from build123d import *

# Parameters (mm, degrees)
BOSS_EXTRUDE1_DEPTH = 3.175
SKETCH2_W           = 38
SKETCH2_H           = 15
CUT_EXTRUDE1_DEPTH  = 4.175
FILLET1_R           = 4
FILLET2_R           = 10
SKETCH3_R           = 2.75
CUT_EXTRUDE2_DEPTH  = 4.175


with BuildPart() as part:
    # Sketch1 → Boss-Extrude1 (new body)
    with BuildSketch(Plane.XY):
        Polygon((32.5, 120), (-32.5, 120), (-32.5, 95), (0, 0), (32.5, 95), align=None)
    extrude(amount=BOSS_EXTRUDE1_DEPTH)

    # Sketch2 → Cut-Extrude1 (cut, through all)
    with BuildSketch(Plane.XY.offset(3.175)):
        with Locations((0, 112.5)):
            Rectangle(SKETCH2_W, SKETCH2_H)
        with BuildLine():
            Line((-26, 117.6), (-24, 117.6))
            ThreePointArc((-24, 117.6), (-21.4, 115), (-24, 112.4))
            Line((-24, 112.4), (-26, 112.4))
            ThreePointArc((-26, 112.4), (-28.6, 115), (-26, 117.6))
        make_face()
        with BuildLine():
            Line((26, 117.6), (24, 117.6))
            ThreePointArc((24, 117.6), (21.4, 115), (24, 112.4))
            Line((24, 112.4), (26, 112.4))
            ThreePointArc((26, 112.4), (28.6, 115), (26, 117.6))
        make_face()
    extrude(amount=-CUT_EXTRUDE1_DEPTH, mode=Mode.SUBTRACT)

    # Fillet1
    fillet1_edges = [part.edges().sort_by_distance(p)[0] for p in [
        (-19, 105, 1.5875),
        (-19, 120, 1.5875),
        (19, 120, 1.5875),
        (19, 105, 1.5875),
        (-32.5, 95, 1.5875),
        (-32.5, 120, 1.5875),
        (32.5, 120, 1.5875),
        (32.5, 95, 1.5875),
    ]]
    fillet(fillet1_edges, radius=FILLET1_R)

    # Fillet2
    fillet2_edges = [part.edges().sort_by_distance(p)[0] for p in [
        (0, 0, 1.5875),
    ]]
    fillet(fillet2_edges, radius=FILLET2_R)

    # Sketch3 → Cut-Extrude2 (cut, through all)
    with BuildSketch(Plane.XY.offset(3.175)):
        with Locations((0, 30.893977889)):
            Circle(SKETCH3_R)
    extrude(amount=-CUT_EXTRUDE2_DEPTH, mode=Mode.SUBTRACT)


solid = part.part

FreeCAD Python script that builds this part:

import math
import FreeCAD as App
import Part
import Sketcher

V = App.Vector


def edges_at(feature, points):
    """Names of the edges that pass closest to the given points."""
    edges = feature.Shape.Edges
    near = lambda p: min(range(len(edges)), key=lambda i: edges[i].distToShape(Part.Vertex(*p))[0])
    return sorted({f"Edge{near(p) + 1}" for p in points})

doc = App.newDocument("Part")
body = doc.addObject("PartDesign::Body", "Body")

sketch1 = body.newObject("Sketcher::SketchObject", "Sketch")
sketch1.AttachmentSupport = (doc.getObject("XY_Plane"), [""])
sketch1.MapMode = "FlatFace"
sketch1.addGeometry(Part.LineSegment(V(32, 120, 0), V(-32, 120, 0)), False)
sketch1.addGeometry(Part.LineSegment(V(-32, 120, 0), V(-32, 95, 0)), False)
sketch1.addGeometry(Part.LineSegment(V(-32, 95, 0), V(0, 0, 0)), False)
sketch1.addGeometry(Part.LineSegment(V(0, 0, 0), V(32, 95, 0)), False)
sketch1.addGeometry(Part.LineSegment(V(32, 95, 0), V(32, 120, 0)), False)
sketch1.addConstraint(Sketcher.Constraint("Coincident", 0, 2, 1, 1))
sketch1.addConstraint(Sketcher.Constraint("Coincident", 1, 2, 2, 1))
sketch1.addConstraint(Sketcher.Constraint("Coincident", 2, 2, 3, 1))
sketch1.addConstraint(Sketcher.Constraint("Coincident", 3, 2, 4, 1))
sketch1.addConstraint(Sketcher.Constraint("Coincident", 4, 2, 0, 1))
sketch1.addConstraint(Sketcher.Constraint("Horizontal", 0))
sketch1.addConstraint(Sketcher.Constraint("Vertical", 1))
sketch1.addConstraint(Sketcher.Constraint("Vertical", 4))
sketch1.addConstraint(Sketcher.Constraint("Coincident", 2, 2, -1, 1))
sketch1.addConstraint(Sketcher.Constraint("Symmetric", 1, 2, 3, 2, -2))
sketch1.addConstraint(Sketcher.Constraint("DistanceX", 0, 2, 0, 1, 65.0))
sketch1.addConstraint(Sketcher.Constraint("DistanceY", 1, 2, 1, 1, 25.0))
sketch1.addConstraint(Sketcher.Constraint("DistanceY", -1, 1, 0, 2, 120.0))
pad1 = body.newObject("PartDesign::Pad", "Pad")
pad1.Profile = sketch1
pad1.Length = 3.175

sketch2 = body.newObject("Sketcher::SketchObject", "Sketch001")
sketch2.AttachmentSupport = (doc.getObject("XY_Plane"), [""])
sketch2.MapMode = "FlatFace"
sketch2.AttachmentOffset = App.Placement(V(0, 0, 3.175), App.Rotation())
sketch2.addGeometry(Part.LineSegment(V(-19, 120, 0), V(-19, 105, 0)), False)
sketch2.addGeometry(Part.LineSegment(V(-19, 105, 0), V(19, 105, 0)), False)
sketch2.addGeometry(Part.LineSegment(V(19, 105, 0), V(19, 120, 0)), False)
sketch2.addGeometry(Part.LineSegment(V(19, 120, 0), V(-19, 120, 0)), False)
sketch2.addGeometry(Part.LineSegment(V(-24, 117.6, 0), V(-26, 117.6, 0)), False)
sketch2.addGeometry(Part.ArcOfCircle(Part.Circle(V(-26, 115, 0), V(0, 0, 1), 2.6), math.radians(90), math.radians(270)), False)
sketch2.addGeometry(Part.LineSegment(V(-26, 112.4, 0), V(-24, 112.4, 0)), False)
sketch2.addGeometry(Part.ArcOfCircle(Part.Circle(V(-24, 115, 0), V(0, 0, 1), 2.6), math.radians(-90), math.radians(90)), False)
sketch2.addGeometry(Part.LineSegment(V(26, 117.6, 0), V(24, 117.6, 0)), False)
sketch2.addGeometry(Part.ArcOfCircle(Part.Circle(V(24, 115, 0), V(0, 0, 1), 2.6), math.radians(90), math.radians(270)), False)
sketch2.addGeometry(Part.LineSegment(V(24, 112.4, 0), V(26, 112.4, 0)), False)
sketch2.addGeometry(Part.ArcOfCircle(Part.Circle(V(26, 115, 0), V(0, 0, 1), 2.6), math.radians(-90), math.radians(90)), False)
sketch2.addConstraint(Sketcher.Constraint("Coincident", 0, 2, 1, 1))
sketch2.addConstraint(Sketcher.Constraint("Coincident", 1, 2, 2, 1))
sketch2.addConstraint(Sketcher.Constraint("Coincident", 2, 2, 3, 1))
sketch2.addConstraint(Sketcher.Constraint("Coincident", 3, 2, 0, 1))
sketch2.addConstraint(Sketcher.Constraint("Tangent", 4, 2, 5, 1))
sketch2.addConstraint(Sketcher.Constraint("Tangent", 5, 2, 6, 1))
sketch2.addConstraint(Sketcher.Constraint("Tangent", 6, 2, 7, 1))
sketch2.addConstraint(Sketcher.Constraint("Tangent", 7, 2, 4, 1))
sketch2.addConstraint(Sketcher.Constraint("Tangent", 8, 2, 9, 1))
sketch2.addConstraint(Sketcher.Constraint("Tangent", 9, 2, 10, 1))
sketch2.addConstraint(Sketcher.Constraint("Tangent", 10, 2, 11, 1))
sketch2.addConstraint(Sketcher.Constraint("Tangent", 11, 2, 8, 1))
sketch2.addConstraint(Sketcher.Constraint("Vertical", 0))
sketch2.addConstraint(Sketcher.Constraint("Horizontal", 1))
sketch2.addConstraint(Sketcher.Constraint("Vertical", 2))
sketch2.addConstraint(Sketcher.Constraint("Horizontal", 3))
sketch2.addConstraint(Sketcher.Constraint("Horizontal", 4))
sketch2.addConstraint(Sketcher.Constraint("Horizontal", 6))
sketch2.addConstraint(Sketcher.Constraint("Horizontal", 8))
sketch2.addConstraint(Sketcher.Constraint("Horizontal", 10))
sketch2.addConstraint(Sketcher.Constraint("Equal", 7, 9))
sketch2.addConstraint(Sketcher.Constraint("Symmetric", 7, 3, 9, 3, -2))
sketch2.addConstraint(Sketcher.Constraint("Equal", 6, 8))
sketch2.addConstraint(Sketcher.Constraint("Radius", 5, 2.6))
sketch2.addConstraint(Sketcher.Constraint("DistanceX", 1, 1, 1, 2, 38.0))
sketch2.addConstraint(Sketcher.Constraint("DistanceX", 4, 2, 4, 1, 2.0))
sketch2.addConstraint(Sketcher.Constraint("DistanceY", 0, 2, 0, 1, 15.0))
sketch2.addConstraint(Sketcher.Constraint("DistanceX", 5, 3, -1, 1, 26.0))
sketch2.addConstraint(Sketcher.Constraint("DistanceY", -1, 1, 5, 3, 115.0))
sketch2.addConstraint(Sketcher.Constraint("DistanceX", 0, 2, -1, 1, 19.0))
sketch2.addConstraint(Sketcher.Constraint("DistanceY", -1, 1, 0, 2, 105.0))
pocket1 = body.newObject("PartDesign::Pocket", "Pocket")
pocket1.Profile = sketch2
pocket1.Type = "ThroughAll"
doc.recompute()

fillet = body.newObject("PartDesign::Fillet", "Fillet")
fillet.Base = (pocket1, edges_at(pocket1, [
    (-19, 105, 1.587),
    (-19, 120, 1.587),
    (19, 120, 1.587),
    (19, 105, 1.587),
    (-32.5, 95, 1.587),
    (-32.5, 120, 1.587),
    (32.5, 120, 1.587),
    (32.5, 95, 1.587),
]))
fillet.Radius = 4
doc.recompute()

fillet2 = body.newObject("PartDesign::Fillet", "Fillet001")
fillet2.Base = (fillet, edges_at(fillet, [(0, 0, 1.587)]))
fillet2.Radius = 10

sketch3 = body.newObject("Sketcher::SketchObject", "Sketch002")
sketch3.AttachmentSupport = (doc.getObject("XY_Plane"), [""])
sketch3.MapMode = "FlatFace"
sketch3.AttachmentOffset = App.Placement(V(0, 0, 3.175), App.Rotation())
sketch3.addGeometry(Part.Circle(V(0, 30.9, 0), V(0, 0, 1), 2.8), False)
sketch3.addConstraint(Sketcher.Constraint("PointOnObject", 0, 3, -2))
sketch3.addConstraint(Sketcher.Constraint("Diameter", 0, 5.5))
sketch3.addConstraint(Sketcher.Constraint("DistanceY", -1, 1, 0, 3, 30.893978))
pocket2 = body.newObject("PartDesign::Pocket", "Pocket001")
pocket2.Profile = sketch3
pocket2.Type = "ThroughAll"

doc.recompute()
